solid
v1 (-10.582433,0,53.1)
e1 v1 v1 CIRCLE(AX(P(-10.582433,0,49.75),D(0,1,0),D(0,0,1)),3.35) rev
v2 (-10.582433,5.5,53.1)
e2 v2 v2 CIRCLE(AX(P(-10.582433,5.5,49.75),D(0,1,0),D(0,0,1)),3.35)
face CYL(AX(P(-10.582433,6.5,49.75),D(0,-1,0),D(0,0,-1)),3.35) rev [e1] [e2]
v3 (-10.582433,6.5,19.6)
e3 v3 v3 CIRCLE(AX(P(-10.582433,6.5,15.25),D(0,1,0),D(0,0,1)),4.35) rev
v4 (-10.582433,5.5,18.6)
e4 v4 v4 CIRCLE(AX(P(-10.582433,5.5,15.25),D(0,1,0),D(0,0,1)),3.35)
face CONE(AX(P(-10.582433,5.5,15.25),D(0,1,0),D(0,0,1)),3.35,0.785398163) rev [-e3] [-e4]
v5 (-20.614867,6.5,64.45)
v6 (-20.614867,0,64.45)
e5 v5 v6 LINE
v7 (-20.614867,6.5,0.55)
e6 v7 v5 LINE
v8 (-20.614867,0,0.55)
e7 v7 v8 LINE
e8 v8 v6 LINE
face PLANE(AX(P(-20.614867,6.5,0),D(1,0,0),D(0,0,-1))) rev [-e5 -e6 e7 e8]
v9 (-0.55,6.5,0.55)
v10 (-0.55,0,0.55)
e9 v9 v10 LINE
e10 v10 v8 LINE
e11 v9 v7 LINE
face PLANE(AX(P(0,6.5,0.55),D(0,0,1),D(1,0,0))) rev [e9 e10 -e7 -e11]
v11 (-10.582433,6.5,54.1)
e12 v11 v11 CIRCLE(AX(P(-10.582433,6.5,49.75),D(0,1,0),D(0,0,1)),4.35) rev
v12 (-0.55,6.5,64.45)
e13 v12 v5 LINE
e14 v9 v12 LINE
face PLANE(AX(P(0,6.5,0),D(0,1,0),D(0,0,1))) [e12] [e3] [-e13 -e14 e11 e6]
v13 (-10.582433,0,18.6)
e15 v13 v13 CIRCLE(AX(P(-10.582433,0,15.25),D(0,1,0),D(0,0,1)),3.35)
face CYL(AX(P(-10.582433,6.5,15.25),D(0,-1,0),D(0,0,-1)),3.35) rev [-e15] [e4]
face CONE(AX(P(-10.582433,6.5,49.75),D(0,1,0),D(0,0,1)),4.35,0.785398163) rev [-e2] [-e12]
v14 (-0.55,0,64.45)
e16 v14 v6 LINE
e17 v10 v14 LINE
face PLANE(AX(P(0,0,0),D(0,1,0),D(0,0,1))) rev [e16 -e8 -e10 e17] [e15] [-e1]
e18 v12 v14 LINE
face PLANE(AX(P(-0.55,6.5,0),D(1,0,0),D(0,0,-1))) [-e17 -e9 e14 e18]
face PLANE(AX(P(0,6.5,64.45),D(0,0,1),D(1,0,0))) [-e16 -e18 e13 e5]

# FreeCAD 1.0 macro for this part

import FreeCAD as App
import Part
import Sketcher
from FreeCAD import Vector
Q = App.Units.Quantity


def edges_at(feature, points):
    """Names of the edges that pass closest to the given points."""
    edges = feature.Shape.Edges
    near = lambda p: min(range(len(edges)), key=lambda i: edges[i].distToShape(Part.Vertex(*p))[0])
    return sorted({f"Edge{near(p) + 1}" for p in points})

doc = App.newDocument("Part")
body = doc.addObject("PartDesign::Body", "Body")

# Sketch on XZ plane
sketch1 = body.newObject("Sketcher::SketchObject", "Sketch")
sketch1.AttachmentSupport = (doc.getObject("XZ_Plane"), [""])
sketch1.MapMode = "FlatFace"
sketch1.addGeometry(Part.LineSegment(Vector(-20.6, 0.6, 0), Vector(-20.6, 64.5, 0)), False)
sketch1.addGeometry(Part.LineSegment(Vector(-20.6, 64.5, 0), Vector(-0.6, 64.5, 0)), False)
sketch1.addGeometry(Part.LineSegment(Vector(-0.6, 64.5, 0), Vector(-0.6, 0.6, 0)), False)
sketch1.addGeometry(Part.LineSegment(Vector(-0.6, 0.6, 0), Vector(-20.6, 0.6, 0)), False)
sketch1.addGeometry(Part.Circle(Vector(-10.6, 49.8, 0), Vector(0, 0, 1), 3.4), False)
sketch1.addGeometry(Part.Circle(Vector(-10.6, 15.2, 0), Vector(0, 0, 1), 3.4), False)
sketch1.addConstraint(Sketcher.Constraint("Coincident", 0, 2, 1, 1))
sketch1.addConstraint(Sketcher.Constraint("Coincident", 1, 2, 2, 1))
sketch1.addConstraint(Sketcher.Constraint("Coincident", 2, 2, 3, 1))
sketch1.addConstraint(Sketcher.Constraint("Coincident", 3, 2, 0, 1))
sketch1.addConstraint(Sketcher.Constraint("Vertical", 0))
sketch1.addConstraint(Sketcher.Constraint("Horizontal", 1))
sketch1.addConstraint(Sketcher.Constraint("Vertical", 2))
sketch1.addConstraint(Sketcher.Constraint("Horizontal", 3))
sketch1.addConstraint(Sketcher.Constraint("Equal", 4, 5))
sketch1.addConstraint(Sketcher.Constraint("Vertical", 4, 3, 5, 3))
sketch1.addConstraint(Sketcher.Constraint("Diameter", 4, Q("6.7 mm")))
sketch1.addConstraint(Sketcher.Constraint("DistanceY", 0, 1, 0, 2, Q("63.9 mm")))
sketch1.addConstraint(Sketcher.Constraint("DistanceY", 5, 3, 4, 3, Q("34.5 mm")))
sketch1.addConstraint(Sketcher.Constraint("DistanceY", 4, 3, 0, 2, Q("14.7 mm")))
sketch1.addConstraint(Sketcher.Constraint("DistanceY", -1, 1, 4, 3, Q("49.75 mm")))
sketch1.addConstraint(Sketcher.Constraint("DistanceX", 1, 2, -1, 1, Q("0.55 mm")))
sketch1.addConstraint(Sketcher.Constraint("DistanceX", 1, 1, 1, 2, Q("20.064867 mm")))
sketch1.addConstraint(Sketcher.Constraint("DistanceX", 4, 3, -1, 1, Q("10.582433 mm")))
pad1 = body.newObject("PartDesign::Pad", "Pad")
pad1.Profile = sketch1
pad1.Length = 6.5
pad1.Reversed = True
doc.recompute()

chamfer = body.newObject("PartDesign::Chamfer", "Chamfer")
chamfer.Base = (pad1, edges_at(pad1, [(-13.932, 6.5, 15.25), (-13.932, 6.5, 49.75)]))
chamfer.Size = 1

doc.recompute()
